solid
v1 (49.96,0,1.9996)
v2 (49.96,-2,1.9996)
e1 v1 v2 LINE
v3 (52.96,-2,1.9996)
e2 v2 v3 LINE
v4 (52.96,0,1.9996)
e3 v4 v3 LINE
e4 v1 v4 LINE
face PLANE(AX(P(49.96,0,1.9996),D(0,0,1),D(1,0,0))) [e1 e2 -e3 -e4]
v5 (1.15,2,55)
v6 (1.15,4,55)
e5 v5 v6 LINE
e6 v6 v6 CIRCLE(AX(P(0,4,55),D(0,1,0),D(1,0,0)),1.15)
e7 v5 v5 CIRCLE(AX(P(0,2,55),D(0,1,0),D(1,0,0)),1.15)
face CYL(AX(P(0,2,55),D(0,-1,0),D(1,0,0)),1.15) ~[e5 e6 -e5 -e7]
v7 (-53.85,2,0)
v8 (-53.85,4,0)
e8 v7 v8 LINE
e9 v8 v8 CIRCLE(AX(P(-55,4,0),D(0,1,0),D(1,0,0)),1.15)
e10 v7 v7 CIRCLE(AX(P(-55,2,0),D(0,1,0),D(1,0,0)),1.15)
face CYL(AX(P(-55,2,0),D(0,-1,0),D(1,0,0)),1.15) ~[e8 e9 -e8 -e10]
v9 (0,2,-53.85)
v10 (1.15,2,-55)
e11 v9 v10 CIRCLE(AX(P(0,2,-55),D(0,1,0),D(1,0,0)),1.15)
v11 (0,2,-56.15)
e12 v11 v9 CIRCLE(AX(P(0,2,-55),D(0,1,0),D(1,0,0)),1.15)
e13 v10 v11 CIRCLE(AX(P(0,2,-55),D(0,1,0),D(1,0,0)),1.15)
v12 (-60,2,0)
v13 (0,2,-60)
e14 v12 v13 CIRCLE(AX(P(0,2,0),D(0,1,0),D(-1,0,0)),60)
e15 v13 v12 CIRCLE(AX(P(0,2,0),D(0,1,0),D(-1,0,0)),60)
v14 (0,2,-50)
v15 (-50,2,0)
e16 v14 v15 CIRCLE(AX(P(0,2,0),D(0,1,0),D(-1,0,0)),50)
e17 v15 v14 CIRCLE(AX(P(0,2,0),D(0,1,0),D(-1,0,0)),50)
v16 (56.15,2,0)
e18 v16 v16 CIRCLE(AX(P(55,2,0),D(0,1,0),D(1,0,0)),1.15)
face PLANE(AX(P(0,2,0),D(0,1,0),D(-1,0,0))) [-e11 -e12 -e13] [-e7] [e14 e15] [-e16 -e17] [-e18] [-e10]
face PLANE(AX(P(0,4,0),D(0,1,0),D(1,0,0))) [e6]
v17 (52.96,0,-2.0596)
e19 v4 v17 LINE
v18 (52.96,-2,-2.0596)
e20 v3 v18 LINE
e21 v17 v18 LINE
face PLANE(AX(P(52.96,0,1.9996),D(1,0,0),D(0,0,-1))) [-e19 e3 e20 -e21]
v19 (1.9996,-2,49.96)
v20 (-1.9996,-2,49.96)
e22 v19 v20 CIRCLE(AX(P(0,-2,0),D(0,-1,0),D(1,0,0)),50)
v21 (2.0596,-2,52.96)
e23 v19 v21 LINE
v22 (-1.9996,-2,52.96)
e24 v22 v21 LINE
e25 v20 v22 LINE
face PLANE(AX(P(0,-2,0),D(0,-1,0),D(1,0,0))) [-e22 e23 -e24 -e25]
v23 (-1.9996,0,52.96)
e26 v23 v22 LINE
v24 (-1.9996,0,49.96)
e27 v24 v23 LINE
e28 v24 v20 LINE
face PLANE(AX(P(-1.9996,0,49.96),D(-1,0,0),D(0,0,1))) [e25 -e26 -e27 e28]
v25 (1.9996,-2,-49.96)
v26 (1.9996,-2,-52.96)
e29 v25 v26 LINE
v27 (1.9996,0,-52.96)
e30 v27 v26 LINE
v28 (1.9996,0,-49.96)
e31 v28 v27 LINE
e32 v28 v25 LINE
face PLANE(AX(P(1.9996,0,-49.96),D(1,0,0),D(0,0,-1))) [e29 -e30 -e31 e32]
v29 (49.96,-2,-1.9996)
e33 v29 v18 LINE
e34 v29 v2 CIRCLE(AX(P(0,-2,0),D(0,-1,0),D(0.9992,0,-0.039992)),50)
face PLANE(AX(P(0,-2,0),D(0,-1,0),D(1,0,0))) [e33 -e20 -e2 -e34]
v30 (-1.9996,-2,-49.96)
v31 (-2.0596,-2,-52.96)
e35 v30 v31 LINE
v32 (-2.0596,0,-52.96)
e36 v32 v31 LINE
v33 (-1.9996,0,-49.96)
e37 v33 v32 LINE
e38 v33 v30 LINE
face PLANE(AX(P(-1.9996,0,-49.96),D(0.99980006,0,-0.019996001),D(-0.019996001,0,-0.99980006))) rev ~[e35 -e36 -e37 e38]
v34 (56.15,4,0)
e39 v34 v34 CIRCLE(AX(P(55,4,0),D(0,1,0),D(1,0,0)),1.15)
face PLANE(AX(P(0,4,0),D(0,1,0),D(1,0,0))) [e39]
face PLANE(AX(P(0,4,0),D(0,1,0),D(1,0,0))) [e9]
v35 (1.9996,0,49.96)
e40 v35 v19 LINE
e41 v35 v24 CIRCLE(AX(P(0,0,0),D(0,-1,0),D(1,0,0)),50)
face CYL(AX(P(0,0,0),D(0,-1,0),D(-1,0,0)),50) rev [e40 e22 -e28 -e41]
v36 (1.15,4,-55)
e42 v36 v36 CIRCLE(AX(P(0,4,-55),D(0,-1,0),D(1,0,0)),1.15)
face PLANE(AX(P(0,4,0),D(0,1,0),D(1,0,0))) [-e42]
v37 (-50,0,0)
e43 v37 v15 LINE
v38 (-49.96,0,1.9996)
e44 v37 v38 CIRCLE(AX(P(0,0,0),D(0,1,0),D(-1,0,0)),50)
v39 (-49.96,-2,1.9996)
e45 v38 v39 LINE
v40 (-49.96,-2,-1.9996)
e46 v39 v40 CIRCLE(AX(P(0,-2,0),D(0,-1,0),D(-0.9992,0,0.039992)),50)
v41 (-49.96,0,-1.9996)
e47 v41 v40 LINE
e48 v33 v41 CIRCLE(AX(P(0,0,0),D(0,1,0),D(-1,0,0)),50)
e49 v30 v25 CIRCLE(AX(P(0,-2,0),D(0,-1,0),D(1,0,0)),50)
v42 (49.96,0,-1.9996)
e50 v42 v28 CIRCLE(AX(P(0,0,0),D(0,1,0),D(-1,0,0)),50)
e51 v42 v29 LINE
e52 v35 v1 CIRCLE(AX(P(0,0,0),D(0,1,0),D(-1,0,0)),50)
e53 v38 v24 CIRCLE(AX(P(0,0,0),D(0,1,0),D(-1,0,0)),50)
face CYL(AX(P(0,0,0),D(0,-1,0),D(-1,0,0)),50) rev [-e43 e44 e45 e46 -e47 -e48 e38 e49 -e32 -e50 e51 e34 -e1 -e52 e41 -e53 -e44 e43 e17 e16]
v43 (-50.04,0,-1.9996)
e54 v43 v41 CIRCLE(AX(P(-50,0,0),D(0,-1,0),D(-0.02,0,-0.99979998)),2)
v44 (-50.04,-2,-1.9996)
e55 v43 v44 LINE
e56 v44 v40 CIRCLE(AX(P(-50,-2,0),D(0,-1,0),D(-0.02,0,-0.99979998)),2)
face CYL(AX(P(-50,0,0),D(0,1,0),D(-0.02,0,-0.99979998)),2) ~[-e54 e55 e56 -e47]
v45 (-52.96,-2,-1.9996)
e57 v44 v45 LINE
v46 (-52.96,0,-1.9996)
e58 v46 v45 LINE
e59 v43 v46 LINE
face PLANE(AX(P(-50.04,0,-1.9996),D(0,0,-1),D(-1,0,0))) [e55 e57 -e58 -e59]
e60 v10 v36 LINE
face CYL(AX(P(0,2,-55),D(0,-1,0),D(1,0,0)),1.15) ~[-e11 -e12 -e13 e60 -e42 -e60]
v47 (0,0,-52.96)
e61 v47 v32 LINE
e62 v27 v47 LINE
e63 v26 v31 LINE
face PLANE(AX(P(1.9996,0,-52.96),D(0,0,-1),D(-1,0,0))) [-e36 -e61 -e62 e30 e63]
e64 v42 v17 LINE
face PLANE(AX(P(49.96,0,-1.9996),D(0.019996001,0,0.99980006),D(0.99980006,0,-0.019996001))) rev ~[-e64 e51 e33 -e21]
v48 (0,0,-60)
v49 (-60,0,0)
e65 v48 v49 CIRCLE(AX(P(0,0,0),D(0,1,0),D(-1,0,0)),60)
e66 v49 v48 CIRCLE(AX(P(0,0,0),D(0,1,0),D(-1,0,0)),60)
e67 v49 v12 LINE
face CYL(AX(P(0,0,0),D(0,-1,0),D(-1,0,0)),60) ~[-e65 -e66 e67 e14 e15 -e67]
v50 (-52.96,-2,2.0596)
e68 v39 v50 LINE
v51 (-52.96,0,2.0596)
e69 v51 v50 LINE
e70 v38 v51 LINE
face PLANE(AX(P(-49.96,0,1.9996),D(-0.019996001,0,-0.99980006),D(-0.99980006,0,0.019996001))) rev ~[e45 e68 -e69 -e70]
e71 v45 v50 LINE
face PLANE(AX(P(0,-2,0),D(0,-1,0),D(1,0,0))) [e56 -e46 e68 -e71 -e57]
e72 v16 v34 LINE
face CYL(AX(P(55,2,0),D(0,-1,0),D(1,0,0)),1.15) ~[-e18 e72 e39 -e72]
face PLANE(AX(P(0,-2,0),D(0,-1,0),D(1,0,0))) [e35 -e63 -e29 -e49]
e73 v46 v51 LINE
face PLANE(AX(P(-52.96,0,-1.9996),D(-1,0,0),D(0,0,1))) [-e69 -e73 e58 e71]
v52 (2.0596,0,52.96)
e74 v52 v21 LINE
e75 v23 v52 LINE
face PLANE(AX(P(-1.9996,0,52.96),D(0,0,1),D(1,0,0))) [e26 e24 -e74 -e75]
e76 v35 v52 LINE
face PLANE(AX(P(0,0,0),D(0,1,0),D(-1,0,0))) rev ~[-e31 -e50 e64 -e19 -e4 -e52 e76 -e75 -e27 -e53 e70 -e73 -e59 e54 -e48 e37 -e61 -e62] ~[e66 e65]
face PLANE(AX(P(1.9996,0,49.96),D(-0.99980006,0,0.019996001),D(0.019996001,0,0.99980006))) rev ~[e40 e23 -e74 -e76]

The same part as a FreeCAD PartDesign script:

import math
import FreeCAD as App
import Part
import Sketcher
from FreeCAD import Vector

doc = App.newDocument("Part")
body = doc.addObject("PartDesign::Body", "Body")

# Sketch on XZ plane
sketch1 = body.newObject("Sketcher::SketchObject", "Sketch")
sketch1.AttachmentSupport = (doc.getObject("XZ_Plane"), [""])
sketch1.MapMode = "FlatFace"
sketch1.addGeometry(Part.Circle(Vector(0, 0, 0), Vector(0, 0, 1), 60), False)
sketch1.addGeometry(Part.Circle(Vector(0, 0, 0), Vector(0, 0, 1), 50), False)
sketch1.addConstraint(Sketcher.Constraint("Coincident", 0, 3, -1, 1))
sketch1.addConstraint(Sketcher.Constraint("Coincident", 1, 3, -1, 1))
sketch1.addConstraint(Sketcher.Constraint("Diameter", 0, 120.0))
sketch1.addConstraint(Sketcher.Constraint("Diameter", 1, 100.0))
pad1 = body.newObject("PartDesign::Pad", "Pad")
pad1.Profile = sketch1
pad1.Length = 2
pad1.Reversed = True

# Sketch on XZ plane
sketch2 = body.newObject("Sketcher::SketchObject", "Sketch001")
sketch2.AttachmentSupport = (doc.getObject("XZ_Plane"), [""])
sketch2.MapMode = "FlatFace"
sketch2.AttachmentOffset = App.Placement(Vector(0, 0, -2), App.Rotation())
sketch2.addGeometry(Part.Circle(Vector(0, -55, 0), Vector(0, 0, 1), 1.1), False)
sketch2.addGeometry(Part.Circle(Vector(-55, 0, 0), Vector(0, 0, 1), 1.1), False)
sketch2.addGeometry(Part.Circle(Vector(0, 55, 0), Vector(0, 0, 1), 1.1), False)
sketch2.addGeometry(Part.Circle(Vector(55, 0, 0), Vector(0, 0, 1), 1.1), False)
sketch2.addConstraint(Sketcher.Constraint("Equal", 0, 1))
sketch2.addConstraint(Sketcher.Constraint("Equal", 1, 2))
sketch2.addConstraint(Sketcher.Constraint("Equal", 2, 3))
sketch2.addConstraint(Sketcher.Constraint("Symmetric", 0, 3, 2, 3, -1, 1))
sketch2.addConstraint(Sketcher.Constraint("Symmetric", 1, 3, 3, 3, -1, 1))
sketch2.addConstraint(Sketcher.Constraint("PointOnObject", 0, 3, -2))
sketch2.addConstraint(Sketcher.Constraint("PointOnObject", 1, 3, -1))
sketch2.addConstraint(Sketcher.Constraint("Diameter", 0, 2.3))
sketch2.addConstraint(Sketcher.Constraint("DistanceY", 0, 3, -1, 1, 55.0))
sketch2.addConstraint(Sketcher.Constraint("DistanceX", 1, 3, -1, 1, 55.0))
pad2 = body.newObject("PartDesign::Pad", "Pad001")
pad2.Profile = sketch2
pad2.Length = 2
pad2.Reversed = True

# Sketch on XZ plane
sketch3 = body.newObject("Sketcher::SketchObject", "Sketch002")
sketch3.AttachmentSupport = (doc.getObject("XZ_Plane"), [""])
sketch3.MapMode = "FlatFace"
sketch3.addGeometry(Part.ArcOfCircle(Part.Circle(Vector(0, 0, 0), Vector(0, 0, 1), 50), math.radians(-2.29), math.radians(2.29)), False)
sketch3.addGeometry(Part.LineSegment(Vector(49.96, -2, 0), Vector(52.96, -2.06, 0)), False)
sketch3.addGeometry(Part.LineSegment(Vector(52.96, -2.06, 0), Vector(52.96, 2, 0)), False)
sketch3.addGeometry(Part.LineSegment(Vector(52.96, 2, 0), Vector(49.96, 2, 0)), False)
sketch3.addGeometry(Part.ArcOfCircle(Part.Circle(Vector(0, 0, 0), Vector(0, 0, 1), 50), math.radians(177.71), math.radians(182.29)), False)
sketch3.addGeometry(Part.LineSegment(Vector(-49.96, 2, 0), Vector(-52.96, 2.06, 0)), False)
sketch3.addGeometry(Part.LineSegment(Vector(-52.96, 2.06, 0), Vector(-52.96, -2, 0)), False)
sketch3.addGeometry(Part.LineSegment(Vector(-52.96, -2, 0), Vector(-50.04, -2, 0)), False)
sketch3.addGeometry(Part.ArcOfCircle(Part.Circle(Vector(-50, 0, 0), Vector(0, 0, 1), 2), math.radians(-91.15), math.radians(-88.85)), False)
sketch3.addGeometry(Part.ArcOfCircle(Part.Circle(Vector(0, 0, 0), Vector(0, 0, 1), 50), math.radians(87.71), math.radians(92.29)), False)
sketch3.addGeometry(Part.LineSegment(Vector(2, 49.96, 0), Vector(2.06, 52.96, 0)), False)
sketch3.addGeometry(Part.LineSegment(Vector(2.06, 52.96, 0), Vector(-2, 52.96, 0)), False)
sketch3.addGeometry(Part.LineSegment(Vector(-2, 52.96, 0), Vector(-2, 49.96, 0)), False)
sketch3.addGeometry(Part.LineSegment(Vector(2, -52.96, 0), Vector(2, -49.96, 0)), False)
sketch3.addGeometry(Part.ArcOfCircle(Part.Circle(Vector(0, 0, 0), Vector(0, 0, 1), 50), math.radians(-92.29), math.radians(-87.71)), False)
sketch3.addGeometry(Part.LineSegment(Vector(-2, -49.96, 0), Vector(-2.06, -52.96, 0)), False)
sketch3.addGeometry(Part.LineSegment(Vector(-2.06, -52.96, 0), Vector(2, -52.96, 0)), False)
sketch3.addConstraint(Sketcher.Constraint("Coincident", 0, 1, 1, 1))
sketch3.addConstraint(Sketcher.Constraint("Coincident", 1, 2, 2, 1))
sketch3.addConstraint(Sketcher.Constraint("Coincident", 2, 2, 3, 1))
sketch3.addConstraint(Sketcher.Constraint("Coincident", 3, 2, 0, 2))
sketch3.addConstraint(Sketcher.Constraint("Coincident", 4, 1, 5, 1))
sketch3.addConstraint(Sketcher.Constraint("Coincident", 5, 2, 6, 1))
sketch3.addConstraint(Sketcher.Constraint("Coincident", 6, 2, 7, 1))
sketch3.addConstraint(Sketcher.Constraint("Coincident", 7, 2, 8, 1))
sketch3.addConstraint(Sketcher.Constraint("Coincident", 8, 2, 4, 2))
sketch3.addConstraint(Sketcher.Constraint("Coincident", 9, 1, 10, 1))
sketch3.addConstraint(Sketcher.Constraint("Coincident", 10, 2, 11, 1))
sketch3.addConstraint(Sketcher.Constraint("Coincident", 11, 2, 12, 1))
sketch3.addConstraint(Sketcher.Constraint("Coincident", 12, 2, 9, 2))
sketch3.addConstraint(Sketcher.Constraint("Coincident", 13, 2, 14, 2))
sketch3.addConstraint(Sketcher.Constraint("Coincident", 14, 1, 15, 1))
sketch3.addConstraint(Sketcher.Constraint("Coincident", 15, 2, 16, 1))
sketch3.addConstraint(Sketcher.Constraint("Coincident", 16, 2, 13, 1))
sketch3.addConstraint(Sketcher.Constraint("Vertical", 2))
sketch3.addConstraint(Sketcher.Constraint("Horizontal", 3))
sketch3.addConstraint(Sketcher.Constraint("Vertical", 6))
sketch3.addConstraint(Sketcher.Constraint("Horizontal", 7))
sketch3.addConstraint(Sketcher.Constraint("Horizontal", 11))
sketch3.addConstraint(Sketcher.Constraint("Vertical", 12))
sketch3.addConstraint(Sketcher.Constraint("Vertical", 13))
sketch3.addConstraint(Sketcher.Constraint("Horizontal", 16))
sketch3.addConstraint(Sketcher.Constraint("Coincident", 0, 3, -1, 1))
sketch3.addConstraint(Sketcher.Constraint("Coincident", 4, 3, -1, 1))
sketch3.addConstraint(Sketcher.Constraint("Coincident", 9, 3, -1, 1))
sketch3.addConstraint(Sketcher.Constraint("Coincident", 14, 3, -1, 1))
sketch3.addConstraint(Sketcher.Constraint("Equal", 0, 4))
sketch3.addConstraint(Sketcher.Constraint("Equal", 4, 9))
sketch3.addConstraint(Sketcher.Constraint("Equal", 9, 14))
sketch3.addConstraint(Sketcher.Constraint("Symmetric", 1, 2, 5, 2, -1, 1))
sketch3.addConstraint(Sketcher.Constraint("Symmetric", 10, 2, 15, 2, -1, 1))
sketch3.addConstraint(Sketcher.Constraint("PointOnObject", 8, 3, -1))
sketch3.addConstraint(Sketcher.Constraint("Parallel", 1, 5))
sketch3.addConstraint(Sketcher.Constraint("Perpendicular", 5, 10))
sketch3.addConstraint(Sketcher.Constraint("Parallel", 10, 15))
sketch3.addConstraint(Sketcher.Constraint("Horizontal", 3, 2, 4, 1))
sketch3.addConstraint(Sketcher.Constraint("Horizontal", 0, 1, 6, 2))
sketch3.addConstraint(Sketcher.Constraint("Horizontal", 7, 2, 8, 2))
sketch3.addConstraint(Sketcher.Constraint("Horizontal", 9, 1, 12, 2))
sketch3.addConstraint(Sketcher.Constraint("Horizontal", 13, 2, 14, 1))
sketch3.addConstraint(Sketcher.Constraint("Equal", 16, 2))
sketch3.addConstraint(Sketcher.Constraint("Equal", 3, 12))
sketch3.addConstraint(Sketcher.Constraint("Radius", 0, 50.0))
sketch3.addConstraint(Sketcher.Constraint("DistanceX", 3, 2, 3, 1, 3.0))
sketch3.addConstraint(Sketcher.Constraint("Radius", 8, 2.0))
sketch3.addConstraint(Sketcher.Constraint("DistanceX", 8, 3, -1, 1, 50.0))
sketch3.addConstraint(Sketcher.Constraint("Distance", 1, 3.0006))
pad3 = body.newObject("PartDesign::Pad", "Pad002")
pad3.Profile = sketch3
pad3.Length = 2

doc.recompute()
